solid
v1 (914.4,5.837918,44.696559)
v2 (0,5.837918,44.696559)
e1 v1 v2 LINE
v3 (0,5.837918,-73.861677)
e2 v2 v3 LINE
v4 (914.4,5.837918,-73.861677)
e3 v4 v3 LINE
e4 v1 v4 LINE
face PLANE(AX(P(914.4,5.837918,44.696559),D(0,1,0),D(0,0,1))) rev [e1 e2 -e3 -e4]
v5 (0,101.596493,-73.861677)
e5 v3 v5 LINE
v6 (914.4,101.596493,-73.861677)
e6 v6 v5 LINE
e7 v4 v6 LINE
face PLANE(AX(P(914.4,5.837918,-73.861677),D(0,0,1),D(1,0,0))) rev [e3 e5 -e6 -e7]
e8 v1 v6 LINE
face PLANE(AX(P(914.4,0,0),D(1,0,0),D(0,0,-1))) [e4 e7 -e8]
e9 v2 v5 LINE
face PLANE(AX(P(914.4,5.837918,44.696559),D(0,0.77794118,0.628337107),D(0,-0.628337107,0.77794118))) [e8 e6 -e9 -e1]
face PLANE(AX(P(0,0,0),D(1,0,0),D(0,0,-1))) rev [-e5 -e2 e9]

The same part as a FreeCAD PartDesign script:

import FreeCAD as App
import Part
import Sketcher
Q = App.Units.Quantity


def add_polygon(sketch, points):
    """Adds a closed chain of lines whose ends are joined by coincident constraints."""
    first, n = sketch.GeometryCount, len(points)
    for a, b in zip(points, points[1:] + points[:1]):
        sketch.addGeometry(Part.LineSegment(App.Vector(*a, 0), App.Vector(*b, 0)), False)
    for i in range(n):
        sketch.addConstraint(Sketcher.Constraint("Coincident", first + i, 2, first + (i + 1) % n, 1))

doc = App.newDocument("Part")
body = doc.addObject("PartDesign::Body", "Body")

# Sketch on YZ plane
sketch1 = doc.addObject("Sketcher::SketchObject", "Sketch")
body.addObject(sketch1)
sketch1.AttachmentSupport = (doc.YZ_Plane, [""])
sketch1.MapMode = "FlatFace"
add_polygon(sketch1, [(102, -74), (6, 45), (6, -74)])  # lines 0-2
sketch1.addConstraint([
    Sketcher.Constraint("Vertical", 1),
    Sketcher.Constraint("Horizontal", 2),
    Sketcher.Constraint("Distance", 0, Q("6 in")),
    Sketcher.Constraint("DistanceX", 2, 1, 2, 2, 95.758575),
    Sketcher.Constraint("DistanceY", -1, 1, 0, 2, 44.696559),
    Sketcher.Constraint("DistanceX", -1, 1, 0, 2, 5.837918),
])
pad1 = doc.addObject("PartDesign::Pad", "Pad")
body.addObject(pad1)
pad1.Profile = sketch1
pad1.Length = Q("36 in")

doc.recompute()
